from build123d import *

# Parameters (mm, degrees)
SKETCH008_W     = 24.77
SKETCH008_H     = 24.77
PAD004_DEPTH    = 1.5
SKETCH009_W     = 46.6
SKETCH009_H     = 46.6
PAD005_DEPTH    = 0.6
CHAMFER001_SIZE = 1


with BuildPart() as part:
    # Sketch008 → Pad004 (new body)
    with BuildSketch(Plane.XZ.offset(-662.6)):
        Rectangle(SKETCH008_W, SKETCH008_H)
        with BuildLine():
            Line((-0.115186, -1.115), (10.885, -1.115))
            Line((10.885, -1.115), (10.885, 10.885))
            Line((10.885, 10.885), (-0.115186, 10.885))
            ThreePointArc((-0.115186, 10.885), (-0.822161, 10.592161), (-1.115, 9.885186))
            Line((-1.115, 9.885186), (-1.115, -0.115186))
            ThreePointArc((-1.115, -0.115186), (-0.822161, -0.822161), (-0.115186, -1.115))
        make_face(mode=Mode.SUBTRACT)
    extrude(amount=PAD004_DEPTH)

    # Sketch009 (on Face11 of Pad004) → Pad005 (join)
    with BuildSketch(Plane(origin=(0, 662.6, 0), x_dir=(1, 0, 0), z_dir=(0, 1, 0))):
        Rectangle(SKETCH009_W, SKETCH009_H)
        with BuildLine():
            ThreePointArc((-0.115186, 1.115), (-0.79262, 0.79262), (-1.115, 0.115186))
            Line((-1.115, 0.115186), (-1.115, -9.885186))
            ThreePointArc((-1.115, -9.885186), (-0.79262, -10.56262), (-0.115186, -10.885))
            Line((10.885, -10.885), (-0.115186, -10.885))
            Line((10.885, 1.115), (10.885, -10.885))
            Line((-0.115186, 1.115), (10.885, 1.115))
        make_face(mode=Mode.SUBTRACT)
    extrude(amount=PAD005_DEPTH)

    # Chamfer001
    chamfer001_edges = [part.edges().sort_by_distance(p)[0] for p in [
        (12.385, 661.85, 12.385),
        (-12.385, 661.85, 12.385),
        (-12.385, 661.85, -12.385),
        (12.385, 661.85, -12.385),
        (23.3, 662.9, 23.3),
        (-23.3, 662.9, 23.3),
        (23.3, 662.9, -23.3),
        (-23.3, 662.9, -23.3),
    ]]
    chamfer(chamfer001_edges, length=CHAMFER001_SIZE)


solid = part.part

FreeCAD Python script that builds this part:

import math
import FreeCAD as App
import Part
import Sketcher

V = App.Vector


def edges_at(feature, points):
    """Names of the edges that pass closest to the given points."""
    edges = feature.Shape.Edges
    near = lambda p: min(range(len(edges)), key=lambda i: edges[i].distToShape(Part.Vertex(*p))[0])
    return sorted({f"Edge{near(p) + 1}" for p in points})


def add_polygon(sketch, points):
    """Adds a closed chain of lines whose ends are joined by coincident constraints."""
    first, n = sketch.GeometryCount, len(points)
    for a, b in zip(points, points[1:] + points[:1]):
        sketch.addGeometry(Part.LineSegment(App.Vector(*a, 0), App.Vector(*b, 0)), False)
    for i in range(n):
        sketch.addConstraint(Sketcher.Constraint("Coincident", first + i, 2, first + (i + 1) % n, 1))

doc = App.newDocument("Part")
body = doc.addObject("PartDesign::Body", "Body")

# Sketch on XZ plane
sketch1 = body.newObject("Sketcher::SketchObject", "Sketch")
sketch1.AttachmentSupport = (doc.getObject("XZ_Plane"), [""])
sketch1.MapMode = "FlatFace"
sketch1.AttachmentOffset = App.Placement(V(0, 0, -662.6), App.Rotation())
add_polygon(sketch1, [(-12.4, 12.4), (-12.4, -12.4), (12.4, -12.4), (12.4, 12.4)])  # lines 0-3
sketch1.addGeometry(Part.LineSegment(V(10.9, -1.1, 0), V(-0.1, -1.1, 0)), False)  # 4
sketch1.addGeometry(Part.ArcOfCircle(Part.Circle(V(-0.1, -0.1, 0), V(0, 0, 1), 1), math.radians(-180), math.radians(-90)), False)  # 5
sketch1.addGeometry(Part.LineSegment(V(-1.1, -0.1, 0), V(-1.1, 9.9, 0)), False)  # 6
sketch1.addGeometry(Part.ArcOfCircle(Part.Circle(V(-0.1, 9.9, 0), V(0, 0, 1), 1), math.radians(90), math.radians(180)), False)  # 7
sketch1.addGeometry(Part.LineSegment(V(-0.1, 10.9, 0), V(10.9, 10.9, 0)), False)  # 8
sketch1.addGeometry(Part.LineSegment(V(10.9, 10.9, 0), V(10.9, -1.1, 0)), False)  # 9
sketch1.addConstraint([
    Sketcher.Constraint("Tangent", 4, 2, 5, 2),
    Sketcher.Constraint("Tangent", 5, 1, 6, 1),
    Sketcher.Constraint("Tangent", 6, 2, 7, 2),
    Sketcher.Constraint("Tangent", 7, 1, 8, 1),
    Sketcher.Constraint("Coincident", 8, 2, 9, 1),
    Sketcher.Constraint("Coincident", 9, 2, 4, 1),
    Sketcher.Constraint("Vertical", 0),
    Sketcher.Constraint("Horizontal", 1),
    Sketcher.Constraint("Vertical", 2),
    Sketcher.Constraint("Horizontal", 3),
    Sketcher.Constraint("Horizontal", 4),
    Sketcher.Constraint("Vertical", 6),
    Sketcher.Constraint("Horizontal", 8),
    Sketcher.Constraint("Vertical", 9),
    Sketcher.Constraint("Equal", 5, 7),
    Sketcher.Constraint("Symmetric", 0, 2, 2, 2, -1, 1),
    Sketcher.Constraint("Equal", 3, 0),
    Sketcher.Constraint("DistanceY", 9, 2, 9, 1, 12.0),
    Sketcher.Constraint("DistanceX", 6, 2, 8, 2, 12.0),
    Sketcher.Constraint("DistanceX", 1, 1, 1, 2, 24.77),
    Sketcher.Constraint("DistanceY", 4, 2, 3, 2, 13.5),
    Sketcher.Constraint("DistanceX", 8, 2, 2, 2, 1.5),
    Sketcher.Constraint("Radius", 5, 0.999815),
])
pad1 = body.newObject("PartDesign::Pad", "Pad")
pad1.Profile = sketch1
pad1.Length = 1.5

# Sketch on XZ plane
sketch2 = body.newObject("Sketcher::SketchObject", "Sketch001")
sketch2.AttachmentSupport = (doc.getObject("XZ_Plane"), [""])
sketch2.MapMode = "FlatFace"
sketch2.AttachmentOffset = App.Placement(V(0, 0, -662.6), App.Rotation())
add_polygon(sketch2, [(-23.3, -23.3), (-23.3, 23.3), (23.3, 23.3), (23.3, -23.3)])  # lines 0-3
sketch2.addGeometry(Part.ArcOfCircle(Part.Circle(V(0, 0, 0), V(0, 0, 1), 1.1), math.radians(-174), math.radians(-96)), False)  # 4
sketch2.addGeometry(Part.LineSegment(V(-0.1, -1.1, 0), V(10.9, -1.1, 0)), False)  # 5
sketch2.addGeometry(Part.LineSegment(V(10.9, -1.1, 0), V(10.9, 10.9, 0)), False)  # 6
sketch2.addGeometry(Part.LineSegment(V(10.9, 10.9, 0), V(-0.1, 10.9, 0)), False)  # 7
sketch2.addGeometry(Part.ArcOfCircle(Part.Circle(V(0, 9.8, 0), V(0, 0, 1), 1.1), math.radians(96), math.radians(174)), False)  # 8
sketch2.addGeometry(Part.LineSegment(V(-1.1, 9.9, 0), V(-1.1, -0.1, 0)), False)  # 9
sketch2.addConstraint([
    Sketcher.Constraint("Coincident", 4, 2, 5, 1),
    Sketcher.Constraint("Coincident", 5, 2, 6, 1),
    Sketcher.Constraint("Coincident", 6, 2, 7, 1),
    Sketcher.Constraint("Coincident", 7, 2, 8, 1),
    Sketcher.Constraint("Coincident", 8, 2, 9, 1),
    Sketcher.Constraint("Coincident", 9, 2, 4, 1),
    Sketcher.Constraint("Vertical", 0),
    Sketcher.Constraint("Horizontal", 1),
    Sketcher.Constraint("Vertical", 2),
    Sketcher.Constraint("Horizontal", 3),
    Sketcher.Constraint("Horizontal", 5),
    Sketcher.Constraint("Vertical", 6),
    Sketcher.Constraint("Horizontal", 7),
    Sketcher.Constraint("Vertical", 9),
    Sketcher.Constraint("Coincident", 4, 3, -1, 1),
    Sketcher.Constraint("Equal", 4, 8),
    Sketcher.Constraint("Symmetric", 0, 2, 2, 2, -1, 1),
    Sketcher.Constraint("PointOnObject", 8, 3, -2),
    Sketcher.Constraint("Vertical", 4, 2, 7, 2),
    Sketcher.Constraint("Equal", 3, 0),
    Sketcher.Constraint("DistanceY", 6, 1, 6, 2, 12.0),
    Sketcher.Constraint("DistanceX", 1, 1, 1, 2, 46.6),
    Sketcher.Constraint("DistanceX", 8, 2, 6, 2, 12.0),
    Sketcher.Constraint("DistanceY", -1, 1, 8, 3, 9.77),
    Sketcher.Constraint("DistanceX", -1, 1, 5, 2, 10.885),
    Sketcher.Constraint("Radius", 4, 1.120934),
])
pad2 = body.newObject("PartDesign::Pad", "Pad001")
pad2.Profile = sketch2
pad2.Length = 0.6
pad2.Reversed = True
doc.recompute()

chamfer = body.newObject("PartDesign::Chamfer", "Chamfer")
chamfer.Base = (pad2, edges_at(pad2, [
    (12.385, 661.85, 12.385),
    (-12.385, 661.85, 12.385),
    (-12.385, 661.85, -12.385),
    (12.385, 661.85, -12.385),
    (23.3, 662.9, 23.3),
    (-23.3, 662.9, 23.3),
    (23.3, 662.9, -23.3),
    (-23.3, 662.9, -23.3),
]))
chamfer.Size = 1

doc.recompute()
